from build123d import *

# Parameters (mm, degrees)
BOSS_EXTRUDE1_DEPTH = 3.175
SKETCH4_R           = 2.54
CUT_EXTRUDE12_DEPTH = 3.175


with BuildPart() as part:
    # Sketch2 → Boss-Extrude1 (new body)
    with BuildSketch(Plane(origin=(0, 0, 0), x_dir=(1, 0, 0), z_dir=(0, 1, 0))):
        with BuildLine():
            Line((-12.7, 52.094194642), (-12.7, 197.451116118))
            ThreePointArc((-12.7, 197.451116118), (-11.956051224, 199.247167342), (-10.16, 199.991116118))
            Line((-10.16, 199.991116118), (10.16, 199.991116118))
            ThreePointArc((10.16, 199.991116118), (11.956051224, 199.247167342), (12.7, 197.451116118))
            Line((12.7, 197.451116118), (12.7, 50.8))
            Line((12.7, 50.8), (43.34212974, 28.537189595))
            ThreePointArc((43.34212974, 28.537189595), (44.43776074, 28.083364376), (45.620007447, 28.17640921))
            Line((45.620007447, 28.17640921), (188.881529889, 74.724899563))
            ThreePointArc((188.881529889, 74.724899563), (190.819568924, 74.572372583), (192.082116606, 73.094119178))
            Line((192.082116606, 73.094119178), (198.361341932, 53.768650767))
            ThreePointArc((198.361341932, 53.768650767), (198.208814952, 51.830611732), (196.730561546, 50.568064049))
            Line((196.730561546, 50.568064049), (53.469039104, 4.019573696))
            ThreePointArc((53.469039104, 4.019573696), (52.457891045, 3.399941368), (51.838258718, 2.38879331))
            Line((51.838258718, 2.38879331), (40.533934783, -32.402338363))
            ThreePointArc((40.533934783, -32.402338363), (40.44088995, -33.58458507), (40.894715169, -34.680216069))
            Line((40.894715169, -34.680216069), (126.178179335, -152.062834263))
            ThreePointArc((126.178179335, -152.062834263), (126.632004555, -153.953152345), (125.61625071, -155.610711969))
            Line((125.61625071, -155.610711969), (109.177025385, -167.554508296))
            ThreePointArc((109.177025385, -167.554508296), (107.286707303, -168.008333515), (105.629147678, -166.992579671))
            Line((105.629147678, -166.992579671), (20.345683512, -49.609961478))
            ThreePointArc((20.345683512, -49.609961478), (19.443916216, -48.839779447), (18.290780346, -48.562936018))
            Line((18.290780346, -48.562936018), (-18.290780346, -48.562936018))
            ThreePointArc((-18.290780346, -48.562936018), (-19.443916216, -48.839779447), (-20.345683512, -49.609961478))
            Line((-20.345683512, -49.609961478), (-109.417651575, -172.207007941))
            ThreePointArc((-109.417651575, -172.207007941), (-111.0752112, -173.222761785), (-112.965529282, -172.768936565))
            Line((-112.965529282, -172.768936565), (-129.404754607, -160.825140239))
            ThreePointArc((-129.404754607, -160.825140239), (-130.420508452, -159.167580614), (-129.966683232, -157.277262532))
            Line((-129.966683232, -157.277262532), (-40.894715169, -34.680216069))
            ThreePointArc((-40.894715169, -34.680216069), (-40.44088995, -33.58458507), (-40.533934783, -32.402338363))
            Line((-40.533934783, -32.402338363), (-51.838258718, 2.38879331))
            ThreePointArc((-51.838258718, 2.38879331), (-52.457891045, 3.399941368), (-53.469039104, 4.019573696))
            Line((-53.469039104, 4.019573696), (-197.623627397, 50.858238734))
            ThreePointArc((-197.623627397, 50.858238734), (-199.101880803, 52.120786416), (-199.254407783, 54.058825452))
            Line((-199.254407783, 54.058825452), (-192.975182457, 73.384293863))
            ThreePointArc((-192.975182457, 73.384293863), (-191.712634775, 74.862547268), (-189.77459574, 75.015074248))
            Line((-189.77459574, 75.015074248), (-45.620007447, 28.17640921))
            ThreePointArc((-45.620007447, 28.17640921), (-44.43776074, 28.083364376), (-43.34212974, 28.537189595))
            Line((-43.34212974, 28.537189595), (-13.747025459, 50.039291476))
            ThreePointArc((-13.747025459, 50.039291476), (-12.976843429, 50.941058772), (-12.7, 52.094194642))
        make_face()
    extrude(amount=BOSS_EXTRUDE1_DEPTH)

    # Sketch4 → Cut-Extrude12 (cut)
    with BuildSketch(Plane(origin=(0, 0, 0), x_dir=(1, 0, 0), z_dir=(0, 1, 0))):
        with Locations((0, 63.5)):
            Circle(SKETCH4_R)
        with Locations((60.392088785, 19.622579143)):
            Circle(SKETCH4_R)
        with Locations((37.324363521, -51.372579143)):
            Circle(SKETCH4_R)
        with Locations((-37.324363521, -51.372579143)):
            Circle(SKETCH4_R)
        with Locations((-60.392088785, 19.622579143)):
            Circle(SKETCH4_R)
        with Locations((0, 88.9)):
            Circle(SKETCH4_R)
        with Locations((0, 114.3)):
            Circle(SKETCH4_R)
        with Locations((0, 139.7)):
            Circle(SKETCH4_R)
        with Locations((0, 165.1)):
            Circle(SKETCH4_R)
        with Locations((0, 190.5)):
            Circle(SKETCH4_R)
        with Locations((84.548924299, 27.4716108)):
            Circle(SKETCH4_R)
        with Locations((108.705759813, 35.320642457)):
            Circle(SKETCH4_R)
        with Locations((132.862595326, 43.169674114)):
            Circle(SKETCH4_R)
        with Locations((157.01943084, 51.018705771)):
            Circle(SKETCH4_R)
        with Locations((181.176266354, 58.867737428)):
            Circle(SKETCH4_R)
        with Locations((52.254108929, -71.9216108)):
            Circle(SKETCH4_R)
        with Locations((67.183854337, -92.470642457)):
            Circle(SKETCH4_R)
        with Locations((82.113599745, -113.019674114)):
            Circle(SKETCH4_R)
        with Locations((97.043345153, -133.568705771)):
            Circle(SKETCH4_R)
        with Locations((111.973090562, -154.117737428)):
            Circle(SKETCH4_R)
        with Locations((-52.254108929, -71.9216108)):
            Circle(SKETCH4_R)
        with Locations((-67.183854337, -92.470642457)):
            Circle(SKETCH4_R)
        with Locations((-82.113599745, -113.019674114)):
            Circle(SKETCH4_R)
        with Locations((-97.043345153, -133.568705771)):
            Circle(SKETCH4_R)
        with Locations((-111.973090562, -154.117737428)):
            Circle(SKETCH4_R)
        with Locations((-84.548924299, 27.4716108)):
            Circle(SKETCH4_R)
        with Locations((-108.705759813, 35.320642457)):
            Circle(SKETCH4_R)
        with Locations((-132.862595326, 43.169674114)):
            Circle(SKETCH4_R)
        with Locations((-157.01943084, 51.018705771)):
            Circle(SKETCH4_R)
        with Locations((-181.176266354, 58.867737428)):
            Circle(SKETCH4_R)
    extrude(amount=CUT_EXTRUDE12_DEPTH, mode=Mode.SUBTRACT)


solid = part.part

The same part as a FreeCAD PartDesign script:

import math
import FreeCAD as App
import Part
import Sketcher
Q = App.Units.Quantity

doc = App.newDocument("Part")
body = doc.addObject("PartDesign::Body", "Body")

# Sketch on XZ plane
sketch1 = body.newObject("Sketcher::SketchObject", "Sketch")
sketch1.AttachmentSupport = (doc.getObject("XZ_Plane"), [""])
sketch1.MapMode = "FlatFace"
sketch1.addGeometry([
    Part.LineSegment(App.Vector(-12.7, -197.5, 0), App.Vector(-12.7, -52.1, 0)),  # 0
    Part.ArcOfCircle(Part.Circle(App.Vector(-15.2, -52.1, 0), App.Vector(0, 0, 1), 2.5), math.radians(0), math.radians(54)),  # 1
    Part.LineSegment(App.Vector(-13.7, -50, 0), App.Vector(-43.3, -28.5, 0)),  # 2
    Part.ArcOfCircle(Part.Circle(App.Vector(-44.8, -30.6, 0), App.Vector(0, 0, 1), 2.5), math.radians(54), math.radians(108)),  # 3
    Part.LineSegment(App.Vector(-45.6, -28.2, 0), App.Vector(-189.8, -75, 0)),  # 4
    Part.ArcOfCircle(Part.Circle(App.Vector(-190.6, -72.6, 0), App.Vector(0, 0, 1), 2.5), math.radians(-162), math.radians(-72)),  # 5
    Part.LineSegment(App.Vector(-193, -73.4, 0), App.Vector(-199.3, -54.1, 0)),  # 6
    Part.ArcOfCircle(Part.Circle(App.Vector(-196.8, -53.3, 0), App.Vector(0, 0, 1), 2.5), math.radians(108), math.radians(198)),  # 7
    Part.LineSegment(App.Vector(-197.6, -50.9, 0), App.Vector(-53.5, -4, 0)),  # 8
    Part.ArcOfCircle(Part.Circle(App.Vector(-54.3, -1.6, 0), App.Vector(0, 0, 1), 2.5), math.radians(-72), math.radians(-18)),  # 9
    Part.LineSegment(App.Vector(-51.8, -2.4, 0), App.Vector(-40.5, 32.4, 0)),  # 10
    Part.ArcOfCircle(Part.Circle(App.Vector(-42.9, 33.2, 0), App.Vector(0, 0, 1), 2.5), math.radians(-18), math.radians(36)),  # 11
    Part.LineSegment(App.Vector(-40.9, 34.7, 0), App.Vector(-130, 157.3, 0)),  # 12
    Part.ArcOfCircle(Part.Circle(App.Vector(-127.9, 158.8, 0), App.Vector(0, 0, 1), 2.5), math.radians(126), math.radians(216)),  # 13
    Part.LineSegment(App.Vector(-129.4, 160.8, 0), App.Vector(-113, 172.8, 0)),  # 14
    Part.ArcOfCircle(Part.Circle(App.Vector(-111.5, 170.7, 0), App.Vector(0, 0, 1), 2.5), math.radians(36), math.radians(126)),  # 15
    Part.LineSegment(App.Vector(-109.4, 172.2, 0), App.Vector(-20.3, 49.6, 0)),  # 16
    Part.ArcOfCircle(Part.Circle(App.Vector(-18.3, 51.1, 0), App.Vector(0, 0, 1), 2.5), math.radians(-144), math.radians(-90)),  # 17
    Part.LineSegment(App.Vector(-18.3, 48.6, 0), App.Vector(18.3, 48.6, 0)),  # 18
    Part.ArcOfCircle(Part.Circle(App.Vector(18.3, 51.1, 0), App.Vector(0, 0, 1), 2.5), math.radians(-90), math.radians(-36)),  # 19
    Part.LineSegment(App.Vector(20.3, 49.6, 0), App.Vector(105.6, 167, 0)),  # 20
    Part.ArcOfCircle(Part.Circle(App.Vector(107.7, 165.5, 0), App.Vector(0, 0, 1), 2.5), math.radians(54), math.radians(144)),  # 21
    Part.LineSegment(App.Vector(109.2, 167.6, 0), App.Vector(125.6, 155.6, 0)),  # 22
    Part.ArcOfCircle(Part.Circle(App.Vector(124.1, 153.6, 0), App.Vector(0, 0, 1), 2.5), math.radians(-36), math.radians(54)),  # 23
    Part.LineSegment(App.Vector(126.2, 152.1, 0), App.Vector(40.9, 34.7, 0)),  # 24
    Part.ArcOfCircle(Part.Circle(App.Vector(42.9, 33.2, 0), App.Vector(0, 0, 1), 2.5), math.radians(144), math.radians(198)),  # 25
    Part.LineSegment(App.Vector(40.5, 32.4, 0), App.Vector(51.8, -2.4, 0)),  # 26
    Part.ArcOfCircle(Part.Circle(App.Vector(54.3, -1.6, 0), App.Vector(0, 0, 1), 2.5), math.radians(-162), math.radians(-108)),  # 27
    Part.LineSegment(App.Vector(53.5, -4, 0), App.Vector(196.7, -50.6, 0)),  # 28
    Part.ArcOfCircle(Part.Circle(App.Vector(195.9, -53, 0), App.Vector(0, 0, 1), 2.5), math.radians(-18), math.radians(72)),  # 29
    Part.LineSegment(App.Vector(198.4, -53.8, 0), App.Vector(192.1, -73.1, 0)),  # 30
    Part.ArcOfCircle(Part.Circle(App.Vector(189.7, -72.3, 0), App.Vector(0, 0, 1), 2.5), math.radians(-108), math.radians(-18)),  # 31
    Part.LineSegment(App.Vector(188.9, -74.7, 0), App.Vector(45.6, -28.2, 0)),  # 32
    Part.ArcOfCircle(Part.Circle(App.Vector(44.8, -30.6, 0), App.Vector(0, 0, 1), 2.5), math.radians(72), math.radians(126)),  # 33
    Part.LineSegment(App.Vector(43.3, -28.5, 0), App.Vector(12.7, -50.8, 0)),  # 34
    Part.LineSegment(App.Vector(12.7, -50.8, 0), App.Vector(12.7, -197.5, 0)),  # 35
    Part.ArcOfCircle(Part.Circle(App.Vector(10.2, -197.5, 0), App.Vector(0, 0, 1), 2.5), math.radians(-90), math.radians(0)),  # 36
    Part.LineSegment(App.Vector(10.2, -200, 0), App.Vector(-10.2, -200, 0)),  # 37
    Part.ArcOfCircle(Part.Circle(App.Vector(-10.2, -197.5, 0), App.Vector(0, 0, 1), 2.5), math.radians(-180), math.radians(-90)),  # 38
], False)
sketch1.addConstraint([
    Sketcher.Constraint("Tangent", 0, 2, 1, 1),
    Sketcher.Constraint("Tangent", 1, 2, 2, 1),
    Sketcher.Constraint("Tangent", 2, 2, 3, 1),
    Sketcher.Constraint("Tangent", 3, 2, 4, 1),
    Sketcher.Constraint("Tangent", 4, 2, 5, 2),
    Sketcher.Constraint("Tangent", 5, 1, 6, 1),
    Sketcher.Constraint("Tangent", 6, 2, 7, 2),
    Sketcher.Constraint("Tangent", 7, 1, 8, 1),
    Sketcher.Constraint("Tangent", 8, 2, 9, 1),
    Sketcher.Constraint("Tangent", 9, 2, 10, 1),
    Sketcher.Constraint("Tangent", 10, 2, 11, 1),
    Sketcher.Constraint("Tangent", 11, 2, 12, 1),
    Sketcher.Constraint("Tangent", 12, 2, 13, 2),
    Sketcher.Constraint("Tangent", 13, 1, 14, 1),
    Sketcher.Constraint("Tangent", 14, 2, 15, 2),
    Sketcher.Constraint("Tangent", 15, 1, 16, 1),
    Sketcher.Constraint("Tangent", 16, 2, 17, 1),
    Sketcher.Constraint("Tangent", 17, 2, 18, 1),
    Sketcher.Constraint("Tangent", 18, 2, 19, 1),
    Sketcher.Constraint("Tangent", 19, 2, 20, 1),
    Sketcher.Constraint("Tangent", 20, 2, 21, 2),
    Sketcher.Constraint("Tangent", 21, 1, 22, 1),
    Sketcher.Constraint("Tangent", 22, 2, 23, 2),
    Sketcher.Constraint("Tangent", 23, 1, 24, 1),
    Sketcher.Constraint("Tangent", 24, 2, 25, 1),
    Sketcher.Constraint("Tangent", 25, 2, 26, 1),
    Sketcher.Constraint("Tangent", 26, 2, 27, 1),
    Sketcher.Constraint("Tangent", 27, 2, 28, 1),
    Sketcher.Constraint("Tangent", 28, 2, 29, 2),
    Sketcher.Constraint("Tangent", 29, 1, 30, 1),
    Sketcher.Constraint("Tangent", 30, 2, 31, 2),
    Sketcher.Constraint("Tangent", 31, 1, 32, 1),
    Sketcher.Constraint("Tangent", 32, 2, 33, 1),
    Sketcher.Constraint("Tangent", 33, 2, 34, 1),
    Sketcher.Constraint("Coincident", 34, 2, 35, 1),
    Sketcher.Constraint("Tangent", 35, 2, 36, 2),
    Sketcher.Constraint("Tangent", 36, 1, 37, 1),
    Sketcher.Constraint("Tangent", 37, 2, 38, 2),
    Sketcher.Constraint("Tangent", 38, 1, 0, 1),
    Sketcher.Constraint("Vertical", 0),
    Sketcher.Constraint("Horizontal", 18),
    Sketcher.Constraint("Vertical", 35),
    Sketcher.Constraint("Horizontal", 37),
    Sketcher.Constraint("Equal", 1, 3),
    Sketcher.Constraint("Equal", 3, 5),
    Sketcher.Constraint("Equal", 5, 7),
    Sketcher.Constraint("Equal", 7, 9),
    Sketcher.Constraint("Equal", 9, 11),
    Sketcher.Constraint("Equal", 11, 13),
    Sketcher.Constraint("Equal", 13, 15),
    Sketcher.Constraint("Equal", 15, 17),
    Sketcher.Constraint("Equal", 17, 19),
    Sketcher.Constraint("Equal", 19, 21),
    Sketcher.Constraint("Equal", 21, 23),
    Sketcher.Constraint("Equal", 23, 25),
    Sketcher.Constraint("Equal", 25, 27),
    Sketcher.Constraint("Equal", 27, 29),
    Sketcher.Constraint("Equal", 29, 31),
    Sketcher.Constraint("Equal", 31, 33),
    Sketcher.Constraint("Equal", 33, 36),
    Sketcher.Constraint("Equal", 36, 38),
    Sketcher.Constraint("Symmetric", 11, 3, 25, 3, -2),
    Sketcher.Constraint("Symmetric", 9, 3, 27, 3, -2),
    Sketcher.Constraint("Symmetric", 3, 3, 33, 3, -2),
    Sketcher.Constraint("Symmetric", 16, 2, 19, 2, -2),
    Sketcher.Constraint("Perpendicular", 4, 6),
    Sketcher.Constraint("Perpendicular", 6, 8),
    Sketcher.Constraint("Perpendicular", 12, 14),
    Sketcher.Constraint("Perpendicular", 14, 16),
    Sketcher.Constraint("Perpendicular", 2, 20),
    Sketcher.Constraint("Perpendicular", 20, 22),
    Sketcher.Constraint("Perpendicular", 22, 24),
    Sketcher.Constraint("Perpendicular", 8, 26),
    Sketcher.Constraint("Perpendicular", 10, 28),
    Sketcher.Constraint("Perpendicular", 28, 30),
    Sketcher.Constraint("Perpendicular", 30, 32),
    Sketcher.Constraint("Perpendicular", 16, 34),
    Sketcher.Constraint("Equal", 4, 8),
    Sketcher.Constraint("Equal", 2, 10),
    Sketcher.Constraint("Equal", 6, 14),
    Sketcher.Constraint("Equal", 12, 16),
    Sketcher.Constraint("Radius", 1, Q("0.1 in")),
    Sketcher.Constraint("DistanceX", 37, 2, 37, 1, Q("0.8 in")),
    Sketcher.Constraint("DistanceY", 34, 2, -1, 1, Q("2 in")),
    Sketcher.Constraint("Angle", 2, Q("144 deg")),
    Sketcher.Constraint("Angle", 4, Q("-162 deg")),
    Sketcher.Constraint("Distance", 6, Q("0.8 in")),
    Sketcher.Constraint("DistanceX", 1, 3, -1, 1, Q("0.6 in")),
    Sketcher.Constraint("DistanceY", 17, 3, 14, 2, Q("4.79 in")),
    Sketcher.Constraint("DistanceX", 18, 1, 18, 2, Q("36.581561 mm")),
    Sketcher.Constraint("DistanceY", 0, 1, 0, 2, Q("145.356921 mm")),
    Sketcher.Constraint("DistanceX", 5, 3, -1, 1, Q("190.559499 mm")),
    Sketcher.Constraint("DistanceY", 31, 1, -1, 1, Q("74.7249 mm")),
    Sketcher.Constraint("DistanceX", -1, 1, 21, 3, Q("107.684051 mm")),
])
pad1 = body.newObject("PartDesign::Pad", "Pad")
pad1.Profile = sketch1
pad1.Length = Q("0.125 in")
pad1.Reversed = True

# Sketch on XZ plane
sketch2 = body.newObject("Sketcher::SketchObject", "Sketch001")
sketch2.AttachmentSupport = (doc.getObject("XZ_Plane"), [""])
sketch2.MapMode = "FlatFace"
sketch2.addGeometry([
    Part.Circle(App.Vector(0, -63.5, 0), App.Vector(0, 0, 1), 2.5),  # 0
    Part.Circle(App.Vector(60.4, -19.6, 0), App.Vector(0, 0, 1), 2.5),  # 1
    Part.Circle(App.Vector(37.3, 51.4, 0), App.Vector(0, 0, 1), 2.5),  # 2
    Part.Circle(App.Vector(-37.3, 51.4, 0), App.Vector(0, 0, 1), 2.5),  # 3
    Part.Circle(App.Vector(-60.4, -19.6, 0), App.Vector(0, 0, 1), 2.5),  # 4
    Part.Circle(App.Vector(0, -88.9, 0), App.Vector(0, 0, 1), 2.5),  # 5
    Part.Circle(App.Vector(0, -114.3, 0), App.Vector(0, 0, 1), 2.5),  # 6
    Part.Circle(App.Vector(0, -139.7, 0), App.Vector(0, 0, 1), 2.5),  # 7
    Part.Circle(App.Vector(0, -165.1, 0), App.Vector(0, 0, 1), 2.5),  # 8
    Part.Circle(App.Vector(0, -190.5, 0), App.Vector(0, 0, 1), 2.5),  # 9
    Part.Circle(App.Vector(84.5, -27.5, 0), App.Vector(0, 0, 1), 2.5),  # 10
    Part.Circle(App.Vector(108.7, -35.3, 0), App.Vector(0, 0, 1), 2.5),  # 11
    Part.Circle(App.Vector(132.9, -43.2, 0), App.Vector(0, 0, 1), 2.5),  # 12
    Part.Circle(App.Vector(157, -51, 0), App.Vector(0, 0, 1), 2.5),  # 13
    Part.Circle(App.Vector(181.2, -58.9, 0), App.Vector(0, 0, 1), 2.5),  # 14
    Part.Circle(App.Vector(52.3, 71.9, 0), App.Vector(0, 0, 1), 2.5),  # 15
    Part.Circle(App.Vector(67.2, 92.5, 0), App.Vector(0, 0, 1), 2.5),  # 16
    Part.Circle(App.Vector(82.1, 113, 0), App.Vector(0, 0, 1), 2.5),  # 17
    Part.Circle(App.Vector(97, 133.6, 0), App.Vector(0, 0, 1), 2.5),  # 18
    Part.Circle(App.Vector(112, 154.1, 0), App.Vector(0, 0, 1), 2.5),  # 19
    Part.Circle(App.Vector(-52.3, 71.9, 0), App.Vector(0, 0, 1), 2.5),  # 20
    Part.Circle(App.Vector(-67.2, 92.5, 0), App.Vector(0, 0, 1), 2.5),  # 21
    Part.Circle(App.Vector(-82.1, 113, 0), App.Vector(0, 0, 1), 2.5),  # 22
    Part.Circle(App.Vector(-97, 133.6, 0), App.Vector(0, 0, 1), 2.5),  # 23
    Part.Circle(App.Vector(-112, 154.1, 0), App.Vector(0, 0, 1), 2.5),  # 24
    Part.Circle(App.Vector(-84.5, -27.5, 0), App.Vector(0, 0, 1), 2.5),  # 25
    Part.Circle(App.Vector(-108.7, -35.3, 0), App.Vector(0, 0, 1), 2.5),  # 26
    Part.Circle(App.Vector(-132.9, -43.2, 0), App.Vector(0, 0, 1), 2.5),  # 27
    Part.Circle(App.Vector(-157, -51, 0), App.Vector(0, 0, 1), 2.5),  # 28
    Part.Circle(App.Vector(-181.2, -58.9, 0), App.Vector(0, 0, 1), 2.5),  # 29
], False)
sketch2.addConstraint([
    Sketcher.Constraint("Equal", 0, 1),
    Sketcher.Constraint("Equal", 1, 2),
    Sketcher.Constraint("Equal", 2, 3),
    Sketcher.Constraint("Equal", 3, 4),
    Sketcher.Constraint("Equal", 4, 5),
    Sketcher.Constraint("Equal", 5, 6),
    Sketcher.Constraint("Equal", 6, 7),
    Sketcher.Constraint("Equal", 7, 8),
    Sketcher.Constraint("Equal", 8, 9),
    Sketcher.Constraint("Equal", 9, 10),
    Sketcher.Constraint("Equal", 10, 11),
    Sketcher.Constraint("Equal", 11, 12),
    Sketcher.Constraint("Equal", 12, 13),
    Sketcher.Constraint("Equal", 13, 14),
    Sketcher.Constraint("Equal", 14, 15),
    Sketcher.Constraint("Equal", 15, 16),
    Sketcher.Constraint("Equal", 16, 17),
    Sketcher.Constraint("Equal", 17, 18),
    Sketcher.Constraint("Equal", 18, 19),
    Sketcher.Constraint("Equal", 19, 20),
    Sketcher.Constraint("Equal", 20, 21),
    Sketcher.Constraint("Equal", 21, 22),
    Sketcher.Constraint("Equal", 22, 23),
    Sketcher.Constraint("Equal", 23, 24),
    Sketcher.Constraint("Equal", 24, 25),
    Sketcher.Constraint("Equal", 25, 26),
    Sketcher.Constraint("Equal", 26, 27),
    Sketcher.Constraint("Equal", 27, 28),
    Sketcher.Constraint("Equal", 28, 29),
    Sketcher.Constraint("Symmetric", 2, 3, 3, 3, -2),
    Sketcher.Constraint("Symmetric", 1, 3, 4, 3, -2),
    Sketcher.Constraint("Symmetric", 15, 3, 20, 3, -2),
    Sketcher.Constraint("Symmetric", 16, 3, 21, 3, -2),
    Sketcher.Constraint("Symmetric", 17, 3, 22, 3, -2),
    Sketcher.Constraint("Symmetric", 18, 3, 23, 3, -2),
    Sketcher.Constraint("Symmetric", 19, 3, 24, 3, -2),
    Sketcher.Constraint("Symmetric", 10, 3, 25, 3, -2),
    Sketcher.Constraint("Symmetric", 11, 3, 26, 3, -2),
    Sketcher.Constraint("Symmetric", 12, 3, 27, 3, -2),
    Sketcher.Constraint("Symmetric", 13, 3, 28, 3, -2),
    Sketcher.Constraint("Symmetric", 14, 3, 29, 3, -2),
    Sketcher.Constraint("PointOnObject", 0, 3, -2),
    Sketcher.Constraint("PointOnObject", 5, 3, -2),
    Sketcher.Constraint("PointOnObject", 6, 3, -2),
    Sketcher.Constraint("PointOnObject", 7, 3, -2),
    Sketcher.Constraint("PointOnObject", 8, 3, -2),
    Sketcher.Constraint("PointOnObject", 9, 3, -2),
    Sketcher.Constraint("Diameter", 0, Q("0.2 in")),
    Sketcher.Constraint("DistanceY", 5, 3, 0, 3, Q("1 in")),
    Sketcher.Constraint("DistanceY", 6, 3, 5, 3, Q("1 in")),
    Sketcher.Constraint("DistanceY", 7, 3, 6, 3, Q("1 in")),
    Sketcher.Constraint("DistanceY", 8, 3, 7, 3, Q("1 in")),
    Sketcher.Constraint("DistanceY", 9, 3, 8, 3, Q("1 in")),
    Sketcher.Constraint("DistanceY", 0, 3, -1, 1, Q("2.5 in")),
    Sketcher.Constraint("DistanceX", -1, 1, 17, 3, Q("82.1136 mm")),
    Sketcher.Constraint("DistanceX", -1, 1, 1, 3, Q("60.392089 mm")),
    Sketcher.Constraint("DistanceY", 1, 3, -1, 1, Q("19.622579 mm")),
    Sketcher.Constraint("DistanceY", -1, 1, 2, 3, Q("51.372579 mm")),
    Sketcher.Constraint("DistanceY", 10, 3, -1, 1, Q("27.471611 mm")),
    Sketcher.Constraint("DistanceX", -1, 1, 11, 3, Q("108.70576 mm")),
    Sketcher.Constraint("DistanceX", -1, 1, 13, 3, Q("157.019431 mm")),
    Sketcher.Constraint("DistanceX", -1, 1, 15, 3, Q("52.254109 mm")),
    Sketcher.Constraint("DistanceY", -1, 1, 15, 3, Q("71.921611 mm")),
    Sketcher.Constraint("DistanceX", -1, 1, 19, 3, Q("111.973091 mm")),
    Sketcher.Constraint("DistanceX", 2, 3, 10, 3, Q("47.224561 mm")),
    Sketcher.Constraint("DistanceY", 11, 3, 10, 3, Q("7.849032 mm")),
    Sketcher.Constraint("DistanceY", 12, 3, 11, 3, Q("7.849032 mm")),
    Sketcher.Constraint("DistanceX", 10, 3, 12, 3, Q("48.313671 mm")),
    Sketcher.Constraint("DistanceY", 13, 3, 12, 3, Q("7.849032 mm")),
    Sketcher.Constraint("DistanceY", 14, 3, 13, 3, Q("7.849032 mm")),
    Sketcher.Constraint("DistanceX", 12, 3, 14, 3, Q("48.313671 mm")),
    Sketcher.Constraint("DistanceY", 15, 3, 16, 3, Q("20.549032 mm")),
    Sketcher.Constraint("DistanceX", 2, 3, 16, 3, Q("29.859491 mm")),
    Sketcher.Constraint("DistanceY", 16, 3, 17, 3, Q("20.549032 mm")),
    Sketcher.Constraint("DistanceY", 17, 3, 18, 3, Q("20.549032 mm")),
    Sketcher.Constraint("DistanceX", 16, 3, 18, 3, Q("29.859491 mm")),
    Sketcher.Constraint("DistanceX", 3, 3, 18, 3, Q("134.367709 mm")),
    Sketcher.Constraint("DistanceY", 18, 3, 19, 3, Q("20.549032 mm")),
])
pocket1 = body.newObject("PartDesign::Pocket", "Pocket")
pocket1.Profile = sketch2
pocket1.Length = Q("0.125 in")

doc.recompute()
